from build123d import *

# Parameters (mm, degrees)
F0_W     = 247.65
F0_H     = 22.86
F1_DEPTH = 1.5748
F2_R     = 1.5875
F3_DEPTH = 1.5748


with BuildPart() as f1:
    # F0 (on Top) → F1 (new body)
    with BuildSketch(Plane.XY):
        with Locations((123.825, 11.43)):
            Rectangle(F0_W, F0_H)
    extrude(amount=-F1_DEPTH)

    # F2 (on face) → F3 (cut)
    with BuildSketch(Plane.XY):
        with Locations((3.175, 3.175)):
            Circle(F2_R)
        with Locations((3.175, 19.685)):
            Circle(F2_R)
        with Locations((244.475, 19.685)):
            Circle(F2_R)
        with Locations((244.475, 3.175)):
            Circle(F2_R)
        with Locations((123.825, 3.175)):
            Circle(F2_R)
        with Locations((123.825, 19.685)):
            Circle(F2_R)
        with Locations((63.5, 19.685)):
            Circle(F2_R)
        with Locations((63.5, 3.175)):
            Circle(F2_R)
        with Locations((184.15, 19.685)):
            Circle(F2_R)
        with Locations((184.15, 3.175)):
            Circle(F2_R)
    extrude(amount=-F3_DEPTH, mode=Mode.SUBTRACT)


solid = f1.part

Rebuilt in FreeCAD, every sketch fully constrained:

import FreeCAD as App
import Part
import Sketcher
Q = App.Units.Quantity


def add_polygon(sketch, points):
    """Adds a closed chain of lines whose ends are joined by coincident constraints."""
    first, n = sketch.GeometryCount, len(points)
    for a, b in zip(points, points[1:] + points[:1]):
        sketch.addGeometry(Part.LineSegment(App.Vector(*a, 0), App.Vector(*b, 0)), False)
    for i in range(n):
        sketch.addConstraint(Sketcher.Constraint("Coincident", first + i, 2, first + (i + 1) % n, 1))

doc = App.newDocument("Part")
body = doc.addObject("PartDesign::Body", "Body")

sketch1 = body.newObject("Sketcher::SketchObject", "Sketch")
sketch1.AttachmentSupport = (doc.getObject("XY_Plane"), [""])
sketch1.MapMode = "FlatFace"
add_polygon(sketch1, [(0, 22.86), (0, 0), (247.65, 0), (247.65, 22.86)])
sketch1.addConstraint([
    Sketcher.Constraint("Vertical", 0),
    Sketcher.Constraint("Horizontal", 1),
    Sketcher.Constraint("Vertical", 2),
    Sketcher.Constraint("Horizontal", 3),
    Sketcher.Constraint("Coincident", 0, 2, -1, 1),
    Sketcher.Constraint("DistanceY", 0, 2, 0, 1, Q("0.9 in")),
    Sketcher.Constraint("DistanceX", 1, 1, 1, 2, Q("9.75 in")),
])
pad1 = body.newObject("PartDesign::Pad", "Pad")
pad1.Profile = sketch1
pad1.Length = Q("0.062 in")
pad1.Reversed = True

sketch2 = body.newObject("Sketcher::SketchObject", "Sketch001")
sketch2.AttachmentSupport = (doc.getObject("XY_Plane"), [""])
sketch2.MapMode = "FlatFace"
sketch2.addGeometry([
    Part.Circle(App.Vector(3.175, 3.175, 0), App.Vector(0, 0, 1), 1.5875),
    Part.Circle(App.Vector(3.175, 19.685, 0), App.Vector(0, 0, 1), 1.5875),
    Part.Circle(App.Vector(244.475, 19.685, 0), App.Vector(0, 0, 1), 1.5875),
    Part.Circle(App.Vector(244.475, 3.175, 0), App.Vector(0, 0, 1), 1.5875),
    Part.Circle(App.Vector(123.825, 3.175, 0), App.Vector(0, 0, 1), 1.5875),
    Part.Circle(App.Vector(123.825, 19.685, 0), App.Vector(0, 0, 1), 1.5875),
    Part.Circle(App.Vector(63.5, 19.685, 0), App.Vector(0, 0, 1), 1.5875),
    Part.Circle(App.Vector(63.5, 3.175, 0), App.Vector(0, 0, 1), 1.5875),
    Part.Circle(App.Vector(184.15, 19.685, 0), App.Vector(0, 0, 1), 1.5875),
    Part.Circle(App.Vector(184.15, 3.175, 0), App.Vector(0, 0, 1), 1.5875),
], False)
sketch2.addConstraint([
    Sketcher.Constraint("Equal", 0, 1),
    Sketcher.Constraint("Equal", 1, 2),
    Sketcher.Constraint("Equal", 2, 3),
    Sketcher.Constraint("Equal", 3, 4),
    Sketcher.Constraint("Equal", 4, 5),
    Sketcher.Constraint("Equal", 5, 6),
    Sketcher.Constraint("Equal", 6, 7),
    Sketcher.Constraint("Equal", 7, 8),
    Sketcher.Constraint("Equal", 8, 9),
    Sketcher.Constraint("Horizontal", 1, 3, 2, 3),
    Sketcher.Constraint("Horizontal", 0, 3, 3, 3),
    Sketcher.Constraint("Horizontal", 3, 3, 4, 3),
    Sketcher.Constraint("Horizontal", 2, 3, 5, 3),
    Sketcher.Constraint("Horizontal", 5, 3, 6, 3),
    Sketcher.Constraint("Horizontal", 4, 3, 7, 3),
    Sketcher.Constraint("Horizontal", 6, 3, 8, 3),
    Sketcher.Constraint("Horizontal", 7, 3, 9, 3),
    Sketcher.Constraint("Vertical", 0, 3, 1, 3),
    Sketcher.Constraint("Vertical", 2, 3, 3, 3),
    Sketcher.Constraint("Vertical", 4, 3, 5, 3),
    Sketcher.Constraint("Vertical", 6, 3, 7, 3),
    Sketcher.Constraint("Vertical", 8, 3, 9, 3),
    Sketcher.Constraint("Diameter", 0, Q("0.125 in")),
    Sketcher.Constraint("DistanceX", -1, 1, 6, 3, Q("2.5 in")),
    Sketcher.Constraint("DistanceX", 1, 3, 2, 3, Q("9.5 in")),
    Sketcher.Constraint("DistanceX", -1, 1, 8, 3, Q("7.25 in")),
    Sketcher.Constraint("DistanceY", 0, 3, 1, 3, Q("0.65 in")),
    Sketcher.Constraint("DistanceX", 4, 3, 3, 3, Q("4.75 in")),
    Sketcher.Constraint("DistanceX", -1, 1, 0, 3, Q("0.125 in")),
    Sketcher.Constraint("DistanceY", -1, 1, 0, 3, Q("0.125 in")),
])
pocket1 = body.newObject("PartDesign::Pocket", "Pocket")
pocket1.Profile = sketch2
pocket1.Length = Q("0.062 in")

doc.recompute()
